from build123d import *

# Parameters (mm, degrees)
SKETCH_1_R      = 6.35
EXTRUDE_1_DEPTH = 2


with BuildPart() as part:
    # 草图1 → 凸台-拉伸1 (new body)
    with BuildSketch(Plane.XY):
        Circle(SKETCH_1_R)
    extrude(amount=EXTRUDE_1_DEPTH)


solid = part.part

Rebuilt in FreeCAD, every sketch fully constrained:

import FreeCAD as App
import Part
import Sketcher

V = App.Vector
Q = App.Units.Quantity

doc = App.newDocument("Part")
body = doc.addObject("PartDesign::Body", "Body")

sketch1 = body.newObject("Sketcher::SketchObject", "Sketch")
sketch1.AttachmentSupport = (doc.getObject("XY_Plane"), [""])
sketch1.MapMode = "FlatFace"
sketch1.addGeometry(Part.Circle(V(0, 0, 0), V(0, 0, 1), 6.35), False)
sketch1.addConstraint(Sketcher.Constraint("Coincident", 0, 3, -1, 1))
sketch1.addConstraint(Sketcher.Constraint("Diameter", 0, Q("12.7 mm")))
pad1 = body.newObject("PartDesign::Pad", "Pad")
pad1.Profile = sketch1
pad1.Length = 2

doc.recompute()
